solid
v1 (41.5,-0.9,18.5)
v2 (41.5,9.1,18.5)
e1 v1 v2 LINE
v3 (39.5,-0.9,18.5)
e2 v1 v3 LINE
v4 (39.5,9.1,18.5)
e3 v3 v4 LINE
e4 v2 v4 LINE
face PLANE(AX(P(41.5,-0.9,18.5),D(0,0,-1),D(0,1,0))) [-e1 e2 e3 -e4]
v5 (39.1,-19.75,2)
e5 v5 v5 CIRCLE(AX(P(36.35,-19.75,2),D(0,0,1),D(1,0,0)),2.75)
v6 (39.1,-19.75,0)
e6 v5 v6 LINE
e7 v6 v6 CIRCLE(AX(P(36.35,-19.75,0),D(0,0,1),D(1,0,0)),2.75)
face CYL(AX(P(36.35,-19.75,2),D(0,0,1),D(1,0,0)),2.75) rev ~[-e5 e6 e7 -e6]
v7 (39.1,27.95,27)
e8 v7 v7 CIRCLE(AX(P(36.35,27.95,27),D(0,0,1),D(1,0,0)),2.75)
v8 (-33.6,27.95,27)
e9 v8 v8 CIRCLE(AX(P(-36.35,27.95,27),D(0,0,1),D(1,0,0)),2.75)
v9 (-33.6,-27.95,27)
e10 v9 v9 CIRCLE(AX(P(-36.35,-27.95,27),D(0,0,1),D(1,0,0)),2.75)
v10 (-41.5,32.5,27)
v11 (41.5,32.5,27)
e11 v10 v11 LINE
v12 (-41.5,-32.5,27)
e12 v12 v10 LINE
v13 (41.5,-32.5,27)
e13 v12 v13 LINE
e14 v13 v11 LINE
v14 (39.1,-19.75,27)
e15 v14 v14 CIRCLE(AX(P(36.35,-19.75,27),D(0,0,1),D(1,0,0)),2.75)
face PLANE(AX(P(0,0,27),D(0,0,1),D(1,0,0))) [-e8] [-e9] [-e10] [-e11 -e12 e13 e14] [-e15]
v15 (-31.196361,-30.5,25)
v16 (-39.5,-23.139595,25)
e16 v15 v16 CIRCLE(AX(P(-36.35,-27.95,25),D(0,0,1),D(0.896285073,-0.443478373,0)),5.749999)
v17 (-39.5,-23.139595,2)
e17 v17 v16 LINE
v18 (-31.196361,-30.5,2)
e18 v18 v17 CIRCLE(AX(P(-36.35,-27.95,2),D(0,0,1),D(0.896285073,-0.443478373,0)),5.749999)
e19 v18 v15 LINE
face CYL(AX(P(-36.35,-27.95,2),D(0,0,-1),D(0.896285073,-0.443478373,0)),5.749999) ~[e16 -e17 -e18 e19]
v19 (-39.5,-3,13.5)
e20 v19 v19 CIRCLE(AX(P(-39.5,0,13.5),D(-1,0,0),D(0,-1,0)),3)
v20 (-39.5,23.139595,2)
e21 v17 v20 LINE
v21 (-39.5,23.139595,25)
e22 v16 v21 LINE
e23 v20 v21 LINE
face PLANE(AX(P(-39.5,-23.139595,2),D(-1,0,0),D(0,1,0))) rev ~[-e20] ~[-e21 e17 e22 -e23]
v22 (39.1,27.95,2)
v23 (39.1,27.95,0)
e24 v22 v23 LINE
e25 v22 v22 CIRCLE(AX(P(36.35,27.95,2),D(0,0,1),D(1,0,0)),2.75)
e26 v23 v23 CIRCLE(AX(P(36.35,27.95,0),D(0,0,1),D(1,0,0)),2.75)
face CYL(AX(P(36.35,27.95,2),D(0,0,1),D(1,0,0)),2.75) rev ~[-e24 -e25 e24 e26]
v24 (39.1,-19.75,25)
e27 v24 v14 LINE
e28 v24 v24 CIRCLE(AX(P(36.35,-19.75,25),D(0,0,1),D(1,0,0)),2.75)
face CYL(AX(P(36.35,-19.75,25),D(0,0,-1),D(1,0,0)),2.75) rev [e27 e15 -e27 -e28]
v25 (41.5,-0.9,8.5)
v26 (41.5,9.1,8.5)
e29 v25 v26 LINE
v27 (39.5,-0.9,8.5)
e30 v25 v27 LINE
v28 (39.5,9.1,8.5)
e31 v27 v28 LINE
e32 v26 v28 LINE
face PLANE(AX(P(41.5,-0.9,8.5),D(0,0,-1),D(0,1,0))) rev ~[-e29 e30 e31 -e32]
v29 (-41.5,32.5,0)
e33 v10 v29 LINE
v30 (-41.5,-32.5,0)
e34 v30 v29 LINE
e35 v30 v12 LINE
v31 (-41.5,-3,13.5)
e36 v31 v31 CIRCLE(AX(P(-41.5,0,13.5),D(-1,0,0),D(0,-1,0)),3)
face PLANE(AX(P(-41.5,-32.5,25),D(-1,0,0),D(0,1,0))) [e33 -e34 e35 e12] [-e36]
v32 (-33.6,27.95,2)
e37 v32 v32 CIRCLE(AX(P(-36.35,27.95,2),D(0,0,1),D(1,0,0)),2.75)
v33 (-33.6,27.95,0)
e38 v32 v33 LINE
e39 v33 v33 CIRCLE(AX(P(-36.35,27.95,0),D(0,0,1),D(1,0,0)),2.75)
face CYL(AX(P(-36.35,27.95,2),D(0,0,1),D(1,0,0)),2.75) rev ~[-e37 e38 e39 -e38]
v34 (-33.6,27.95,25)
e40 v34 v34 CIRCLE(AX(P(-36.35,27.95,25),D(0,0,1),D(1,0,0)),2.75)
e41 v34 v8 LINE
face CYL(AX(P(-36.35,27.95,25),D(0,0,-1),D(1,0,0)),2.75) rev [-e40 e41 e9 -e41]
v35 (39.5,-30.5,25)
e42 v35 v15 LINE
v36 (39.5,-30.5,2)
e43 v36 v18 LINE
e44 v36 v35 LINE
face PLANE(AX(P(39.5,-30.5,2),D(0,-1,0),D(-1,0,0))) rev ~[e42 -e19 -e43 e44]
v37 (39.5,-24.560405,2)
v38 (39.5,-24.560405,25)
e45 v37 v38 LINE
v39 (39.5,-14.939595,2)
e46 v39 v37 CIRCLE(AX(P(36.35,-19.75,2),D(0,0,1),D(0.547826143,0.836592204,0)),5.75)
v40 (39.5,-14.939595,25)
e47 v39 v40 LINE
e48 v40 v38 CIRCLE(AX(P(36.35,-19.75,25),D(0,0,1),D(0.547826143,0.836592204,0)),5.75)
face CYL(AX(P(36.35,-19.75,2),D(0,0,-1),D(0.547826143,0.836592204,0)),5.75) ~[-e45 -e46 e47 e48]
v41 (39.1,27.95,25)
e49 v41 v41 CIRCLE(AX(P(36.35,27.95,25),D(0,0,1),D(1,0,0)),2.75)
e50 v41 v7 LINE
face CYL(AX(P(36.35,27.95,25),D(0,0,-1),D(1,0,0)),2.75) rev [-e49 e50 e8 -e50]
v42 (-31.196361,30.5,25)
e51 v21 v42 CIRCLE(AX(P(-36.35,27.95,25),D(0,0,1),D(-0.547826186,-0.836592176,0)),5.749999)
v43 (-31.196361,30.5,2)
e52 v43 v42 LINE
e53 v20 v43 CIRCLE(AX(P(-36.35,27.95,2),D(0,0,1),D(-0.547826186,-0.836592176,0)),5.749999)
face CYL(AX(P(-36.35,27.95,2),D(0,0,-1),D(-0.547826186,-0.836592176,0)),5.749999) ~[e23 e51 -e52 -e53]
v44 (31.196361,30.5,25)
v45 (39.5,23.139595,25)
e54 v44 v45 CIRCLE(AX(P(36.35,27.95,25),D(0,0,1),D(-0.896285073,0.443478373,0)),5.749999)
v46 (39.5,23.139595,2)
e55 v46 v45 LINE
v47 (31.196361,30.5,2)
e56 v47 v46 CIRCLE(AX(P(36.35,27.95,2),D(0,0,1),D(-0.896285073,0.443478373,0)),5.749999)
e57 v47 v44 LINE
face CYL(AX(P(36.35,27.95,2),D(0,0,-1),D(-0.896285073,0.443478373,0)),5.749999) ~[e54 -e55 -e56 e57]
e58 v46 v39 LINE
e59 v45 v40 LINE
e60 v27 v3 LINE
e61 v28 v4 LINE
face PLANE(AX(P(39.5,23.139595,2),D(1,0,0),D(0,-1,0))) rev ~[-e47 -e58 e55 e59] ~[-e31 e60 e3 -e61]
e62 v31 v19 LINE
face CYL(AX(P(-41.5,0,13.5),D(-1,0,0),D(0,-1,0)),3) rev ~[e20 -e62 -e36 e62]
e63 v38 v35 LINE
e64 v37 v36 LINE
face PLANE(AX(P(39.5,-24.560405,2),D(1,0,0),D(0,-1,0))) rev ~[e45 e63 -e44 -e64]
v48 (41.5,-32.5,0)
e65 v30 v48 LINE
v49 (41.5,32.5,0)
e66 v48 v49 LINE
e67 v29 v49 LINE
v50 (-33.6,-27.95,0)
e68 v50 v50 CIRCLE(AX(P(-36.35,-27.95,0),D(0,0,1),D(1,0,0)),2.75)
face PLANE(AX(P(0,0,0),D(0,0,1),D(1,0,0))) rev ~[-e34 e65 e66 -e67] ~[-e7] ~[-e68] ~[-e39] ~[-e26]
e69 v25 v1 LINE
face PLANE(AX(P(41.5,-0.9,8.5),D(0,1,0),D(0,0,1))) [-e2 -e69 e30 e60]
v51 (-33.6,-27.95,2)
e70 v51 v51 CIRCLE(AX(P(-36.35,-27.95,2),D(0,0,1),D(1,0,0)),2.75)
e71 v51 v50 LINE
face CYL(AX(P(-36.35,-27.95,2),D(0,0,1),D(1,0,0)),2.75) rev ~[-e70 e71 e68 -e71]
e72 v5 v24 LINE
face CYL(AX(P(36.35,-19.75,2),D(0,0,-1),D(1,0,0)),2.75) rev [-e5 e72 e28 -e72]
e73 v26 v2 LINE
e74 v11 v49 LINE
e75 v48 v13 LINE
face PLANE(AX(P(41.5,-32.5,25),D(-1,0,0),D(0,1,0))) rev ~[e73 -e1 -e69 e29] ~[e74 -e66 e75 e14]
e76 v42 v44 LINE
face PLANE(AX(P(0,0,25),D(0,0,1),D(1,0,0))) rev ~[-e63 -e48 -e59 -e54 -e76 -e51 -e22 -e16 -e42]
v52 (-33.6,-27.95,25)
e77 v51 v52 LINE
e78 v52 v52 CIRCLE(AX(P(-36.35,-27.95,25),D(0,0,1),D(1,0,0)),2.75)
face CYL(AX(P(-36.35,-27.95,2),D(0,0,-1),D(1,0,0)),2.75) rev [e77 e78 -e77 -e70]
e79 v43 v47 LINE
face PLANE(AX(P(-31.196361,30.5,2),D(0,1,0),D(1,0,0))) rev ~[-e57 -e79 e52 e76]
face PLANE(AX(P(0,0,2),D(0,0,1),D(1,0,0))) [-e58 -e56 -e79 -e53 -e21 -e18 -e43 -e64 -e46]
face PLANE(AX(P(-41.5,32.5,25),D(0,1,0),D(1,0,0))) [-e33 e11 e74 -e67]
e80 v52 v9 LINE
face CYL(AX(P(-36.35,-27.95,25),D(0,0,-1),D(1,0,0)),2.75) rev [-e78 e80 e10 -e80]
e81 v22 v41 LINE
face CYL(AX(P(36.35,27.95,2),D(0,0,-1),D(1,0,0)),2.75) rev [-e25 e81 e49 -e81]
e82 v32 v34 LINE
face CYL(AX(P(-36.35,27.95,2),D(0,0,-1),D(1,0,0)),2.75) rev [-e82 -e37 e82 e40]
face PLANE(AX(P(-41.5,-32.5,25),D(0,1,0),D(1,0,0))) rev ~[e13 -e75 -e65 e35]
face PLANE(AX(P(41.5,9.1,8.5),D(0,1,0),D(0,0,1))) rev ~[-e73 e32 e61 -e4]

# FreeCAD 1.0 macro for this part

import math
import FreeCAD as App
import Part
import Sketcher

V = App.Vector


def add_polygon(sketch, points):
    """Adds a closed chain of lines whose ends are joined by coincident constraints."""
    first, n = sketch.GeometryCount, len(points)
    for a, b in zip(points, points[1:] + points[:1]):
        sketch.addGeometry(Part.LineSegment(App.Vector(*a, 0), App.Vector(*b, 0)), False)
    for i in range(n):
        sketch.addConstraint(Sketcher.Constraint("Coincident", first + i, 2, first + (i + 1) % n, 1))

doc = App.newDocument("Part")
body = doc.addObject("PartDesign::Body", "Body")

sketch1 = body.newObject("Sketcher::SketchObject", "Sketch")
sketch1.AttachmentSupport = (doc.getObject("XY_Plane"), [""])
sketch1.MapMode = "FlatFace"
add_polygon(sketch1, [(-41.5, 32.5), (-41.5, -32.5), (41.5, -32.5), (41.5, 32.5)])
sketch1.addConstraint(Sketcher.Constraint("Vertical", 0))
sketch1.addConstraint(Sketcher.Constraint("Horizontal", 1))
sketch1.addConstraint(Sketcher.Constraint("Vertical", 2))
sketch1.addConstraint(Sketcher.Constraint("Horizontal", 3))
sketch1.addConstraint(Sketcher.Constraint("Symmetric", 0, 2, 2, 2, -1, 1))
sketch1.addConstraint(Sketcher.Constraint("DistanceX", 1, 1, 1, 2, 83.0))
sketch1.addConstraint(Sketcher.Constraint("DistanceY", 0, 2, 0, 1, 65.0))
pad1 = body.newObject("PartDesign::Pad", "Pad")
pad1.Profile = sketch1
pad1.Length = 2

sketch2 = body.newObject("Sketcher::SketchObject", "Sketch001")
sketch2.AttachmentSupport = (doc.getObject("XY_Plane"), [""])
sketch2.MapMode = "FlatFace"
sketch2.AttachmentOffset = App.Placement(V(0, 0, 2), App.Rotation())
add_polygon(sketch2, [(-41.5, 32.5), (-41.5, -32.5), (41.5, -32.5), (41.5, 32.5)])
sketch2.addGeometry(Part.Circle(V(-36.35, -27.95, 0), V(0, 0, 1), 2.75), False)
sketch2.addGeometry(Part.Circle(V(36.35, -19.75, 0), V(0, 0, 1), 2.75), False)
sketch2.addGeometry(Part.Circle(V(-36.35, 27.95, 0), V(0, 0, 1), 2.75), False)
sketch2.addGeometry(Part.LineSegment(V(39.5, -24.560405, 0), V(39.5, -30.5, 0)), False)
sketch2.addGeometry(Part.LineSegment(V(39.5, -30.5, 0), V(-31.196361, -30.5, 0)), False)
sketch2.addGeometry(Part.ArcOfCircle(Part.Circle(V(-36.35, -27.95, 0), V(0, 0, 1), 5.749999), math.radians(-26.326027), math.radians(123.218008)), False)
sketch2.addGeometry(Part.LineSegment(V(-39.5, -23.139595, 0), V(-39.5, 23.139595, 0)), False)
sketch2.addGeometry(Part.ArcOfCircle(Part.Circle(V(-36.35, 27.95, 0), V(0, 0, 1), 5.749999), math.radians(-123.218008), math.radians(26.326027)), False)
sketch2.addGeometry(Part.LineSegment(V(-31.196361, 30.5, 0), V(31.196361, 30.5, 0)), False)
sketch2.addGeometry(Part.ArcOfCircle(Part.Circle(V(36.35, 27.95, 0), V(0, 0, 1), 5.749999), math.radians(153.673973), math.radians(303.218008)), False)
sketch2.addGeometry(Part.LineSegment(V(39.5, 23.139595, 0), V(39.5, -14.939595, 0)), False)
sketch2.addGeometry(Part.ArcOfCircle(Part.Circle(V(36.35, -19.75, 0), V(0, 0, 1), 5.75), math.radians(56.781995), math.radians(303.218005)), False)
sketch2.addGeometry(Part.Circle(V(36.35, 27.95, 0), V(0, 0, 1), 2.75), False)
sketch2.addConstraint(Sketcher.Constraint("Coincident", 7, 2, 8, 1))
sketch2.addConstraint(Sketcher.Constraint("Coincident", 8, 2, 9, 1))
sketch2.addConstraint(Sketcher.Constraint("Coincident", 9, 2, 10, 1))
sketch2.addConstraint(Sketcher.Constraint("Coincident", 10, 2, 11, 1))
sketch2.addConstraint(Sketcher.Constraint("Coincident", 11, 2, 12, 1))
sketch2.addConstraint(Sketcher.Constraint("Coincident", 12, 2, 13, 1))
sketch2.addConstraint(Sketcher.Constraint("Coincident", 13, 2, 14, 1))
sketch2.addConstraint(Sketcher.Constraint("Coincident", 14, 2, 15, 1))
sketch2.addConstraint(Sketcher.Constraint("Coincident", 15, 2, 7, 1))
sketch2.addConstraint(Sketcher.Constraint("Vertical", 0))
sketch2.addConstraint(Sketcher.Constraint("Horizontal", 1))
sketch2.addConstraint(Sketcher.Constraint("Vertical", 2))
sketch2.addConstraint(Sketcher.Constraint("Horizontal", 3))
sketch2.addConstraint(Sketcher.Constraint("Vertical", 7))
sketch2.addConstraint(Sketcher.Constraint("Horizontal", 8))
sketch2.addConstraint(Sketcher.Constraint("Vertical", 10))
sketch2.addConstraint(Sketcher.Constraint("Horizontal", 12))
sketch2.addConstraint(Sketcher.Constraint("Vertical", 14))
sketch2.addConstraint(Sketcher.Constraint("Coincident", 9, 3, 4, 3))
sketch2.addConstraint(Sketcher.Constraint("Coincident", 11, 3, 6, 3))
sketch2.addConstraint(Sketcher.Constraint("Coincident", 15, 3, 5, 3))
sketch2.addConstraint(Sketcher.Constraint("Coincident", 16, 3, 13, 3))
sketch2.addConstraint(Sketcher.Constraint("Equal", 4, 5))
sketch2.addConstraint(Sketcher.Constraint("Equal", 5, 6))
sketch2.addConstraint(Sketcher.Constraint("Equal", 9, 11))
sketch2.addConstraint(Sketcher.Constraint("Equal", 11, 13))
sketch2.addConstraint(Sketcher.Constraint("Equal", 13, 15))
sketch2.addConstraint(Sketcher.Constraint("Equal", 6, 16))
sketch2.addConstraint(Sketcher.Constraint("Symmetric", 4, 3, 13, 3, -1, 1))
sketch2.addConstraint(Sketcher.Constraint("Symmetric", 0, 2, 2, 2, -1, 1))
sketch2.addConstraint(Sketcher.Constraint("Symmetric", 6, 3, 13, 3, -2))
sketch2.addConstraint(Sketcher.Constraint("Horizontal", 10, 2, 13, 2))
sketch2.addConstraint(Sketcher.Constraint("Vertical", 5, 3, 13, 3))
sketch2.addConstraint(Sketcher.Constraint("Vertical", 8, 2, 11, 2))
sketch2.addConstraint(Sketcher.Constraint("Vertical", 7, 2, 13, 2))
sketch2.addConstraint(Sketcher.Constraint("Diameter", 4, 5.5))
sketch2.addConstraint(Sketcher.Constraint("DistanceX", 1, 1, 1, 2, 83.0))
sketch2.addConstraint(Sketcher.Constraint("DistanceY", 0, 2, 0, 1, 65.0))
sketch2.addConstraint(Sketcher.Constraint("Radius", 9, 5.749999))
sketch2.addConstraint(Sketcher.Constraint("DistanceX", 7, 2, 1, 2, 2.0))
sketch2.addConstraint(Sketcher.Constraint("DistanceY", 1, 2, 7, 2, 2.0))
sketch2.addConstraint(Sketcher.Constraint("DistanceX", 4, 3, 5, 3, 72.7))
sketch2.addConstraint(Sketcher.Constraint("DistanceY", 4, 3, 5, 3, 8.2))
sketch2.addConstraint(Sketcher.Constraint("DistanceY", 4, 3, 6, 3, 55.9))
pad2 = body.newObject("PartDesign::Pad", "Pad001")
pad2.Profile = sketch2
pad2.Length = 23

sketch3 = body.newObject("Sketcher::SketchObject", "Sketch002")
sketch3.AttachmentSupport = (doc.getObject("XY_Plane"), [""])
sketch3.MapMode = "FlatFace"
sketch3.AttachmentOffset = App.Placement(V(0, 0, 2), App.Rotation())
sketch3.addGeometry(Part.Circle(V(-36.35, 27.95, 0), V(0, 0, 1), 2.75), False)
sketch3.addGeometry(Part.Circle(V(-36.35, -27.95, 0), V(0, 0, 1), 2.75), False)
sketch3.addGeometry(Part.Circle(V(36.35, 27.95, 0), V(0, 0, 1), 2.75), False)
sketch3.addGeometry(Part.Circle(V(36.35, -19.75, 0), V(0, 0, 1), 2.75), False)
sketch3.addConstraint(Sketcher.Constraint("Equal", 0, 1))
sketch3.addConstraint(Sketcher.Constraint("Equal", 1, 2))
sketch3.addConstraint(Sketcher.Constraint("Equal", 2, 3))
sketch3.addConstraint(Sketcher.Constraint("Symmetric", 1, 3, 2, 3, -1, 1))
sketch3.addConstraint(Sketcher.Constraint("Symmetric", 0, 3, 2, 3, -2))
sketch3.addConstraint(Sketcher.Constraint("Vertical", 2, 3, 3, 3))
sketch3.addConstraint(Sketcher.Constraint("Diameter", 0, 5.5))
sketch3.addConstraint(Sketcher.Constraint("DistanceY", 1, 3, 0, 3, 55.9))
sketch3.addConstraint(Sketcher.Constraint("DistanceX", 0, 3, 2, 3, 72.7))
sketch3.addConstraint(Sketcher.Constraint("DistanceY", 3, 3, 2, 3, 47.7))
pocket1 = body.newObject("PartDesign::Pocket", "Pocket")
pocket1.Profile = sketch3
pocket1.Type = "ThroughAll"

sketch4 = body.newObject("Sketcher::SketchObject", "Sketch003")
sketch4.AttachmentSupport = (doc.getObject("XY_Plane"), [""])
sketch4.MapMode = "FlatFace"
sketch4.AttachmentOffset = App.Placement(V(0, 0, 25), App.Rotation())
add_polygon(sketch4, [(-41.5, 32.5), (-41.5, -32.5), (41.5, -32.5), (41.5, 32.5)])
sketch4.addGeometry(Part.Circle(V(-36.35, -27.95, 0), V(0, 0, 1), 2.75), False)
sketch4.addGeometry(Part.Circle(V(36.35, -19.75, 0), V(0, 0, 1), 2.75), False)
sketch4.addGeometry(Part.Circle(V(-36.35, 27.95, 0), V(0, 0, 1), 2.75), False)
sketch4.addGeometry(Part.Circle(V(36.35, 27.95, 0), V(0, 0, 1), 2.75), False)
sketch4.addConstraint(Sketcher.Constraint("Vertical", 0))
sketch4.addConstraint(Sketcher.Constraint("Horizontal", 1))
sketch4.addConstraint(Sketcher.Constraint("Vertical", 2))
sketch4.addConstraint(Sketcher.Constraint("Horizontal", 3))
sketch4.addConstraint(Sketcher.Constraint("Equal", 4, 5))
sketch4.addConstraint(Sketcher.Constraint("Equal", 5, 6))
sketch4.addConstraint(Sketcher.Constraint("Equal", 6, 7))
sketch4.addConstraint(Sketcher.Constraint("Symmetric", 4, 3, 7, 3, -1, 1))
sketch4.addConstraint(Sketcher.Constraint("Symmetric", 0, 2, 2, 2, -1, 1))
sketch4.addConstraint(Sketcher.Constraint("Symmetric", 6, 3, 7, 3, -2))
sketch4.addConstraint(Sketcher.Constraint("Vertical", 5, 3, 7, 3))
sketch4.addConstraint(Sketcher.Constraint("Diameter", 4, 5.5))
sketch4.addConstraint(Sketcher.Constraint("DistanceX", 1, 1, 1, 2, 83.0))
sketch4.addConstraint(Sketcher.Constraint("DistanceY", 0, 2, 0, 1, 65.0))
sketch4.addConstraint(Sketcher.Constraint("DistanceX", 4, 3, 5, 3, 72.7))
sketch4.addConstraint(Sketcher.Constraint("DistanceY", 4, 3, 5, 3, 8.2))
sketch4.addConstraint(Sketcher.Constraint("DistanceY", 4, 3, 6, 3, 55.9))
pad3 = body.newObject("PartDesign::Pad", "Pad002")
pad3.Profile = sketch4
pad3.Length = 2

sketch5 = body.newObject("Sketcher::SketchObject", "Sketch004")
sketch5.AttachmentSupport = (doc.getObject("YZ_Plane"), [""])
sketch5.MapMode = "FlatFace"
sketch5.AttachmentOffset = App.Placement(V(0, 0, 41.5), App.Rotation())
add_polygon(sketch5, [(-0.9, 18.5), (-0.9, 8.5), (9.1, 8.5), (9.1, 18.5)])
sketch5.addConstraint(Sketcher.Constraint("Vertical", 0))
sketch5.addConstraint(Sketcher.Constraint("Horizontal", 1))
sketch5.addConstraint(Sketcher.Constraint("Vertical", 2))
sketch5.addConstraint(Sketcher.Constraint("Horizontal", 3))
sketch5.addConstraint(Sketcher.Constraint("Equal", 3, 0))
sketch5.addConstraint(Sketcher.Constraint("DistanceX", 1, 1, 1, 2, 10.0))
sketch5.addConstraint(Sketcher.Constraint("DistanceX", 0, 2, -1, 1, 0.9))
sketch5.addConstraint(Sketcher.Constraint("DistanceY", -1, 1, 0, 2, 8.5))
pocket2 = body.newObject("PartDesign::Pocket", "Pocket001")
pocket2.Profile = sketch5
pocket2.Length = 2

sketch6 = body.newObject("Sketcher::SketchObject", "Sketch005")
sketch6.AttachmentSupport = (doc.getObject("YZ_Plane"), [""])
sketch6.MapMode = "FlatFace"
sketch6.AttachmentOffset = App.Placement(V(0, 0, -41.5), App.Rotation())
sketch6.addGeometry(Part.Circle(V(0, 13.5, 0), V(0, 0, 1), 3), False)
sketch6.addConstraint(Sketcher.Constraint("PointOnObject", 0, 3, -2))
sketch6.addConstraint(Sketcher.Constraint("Diameter", 0, 6.0))
sketch6.addConstraint(Sketcher.Constraint("DistanceY", -1, 1, 0, 3, 13.5))
pocket3 = body.newObject("PartDesign::Pocket", "Pocket002")
pocket3.Profile = sketch6
pocket3.Length = 2
pocket3.Reversed = True

doc.recompute()
